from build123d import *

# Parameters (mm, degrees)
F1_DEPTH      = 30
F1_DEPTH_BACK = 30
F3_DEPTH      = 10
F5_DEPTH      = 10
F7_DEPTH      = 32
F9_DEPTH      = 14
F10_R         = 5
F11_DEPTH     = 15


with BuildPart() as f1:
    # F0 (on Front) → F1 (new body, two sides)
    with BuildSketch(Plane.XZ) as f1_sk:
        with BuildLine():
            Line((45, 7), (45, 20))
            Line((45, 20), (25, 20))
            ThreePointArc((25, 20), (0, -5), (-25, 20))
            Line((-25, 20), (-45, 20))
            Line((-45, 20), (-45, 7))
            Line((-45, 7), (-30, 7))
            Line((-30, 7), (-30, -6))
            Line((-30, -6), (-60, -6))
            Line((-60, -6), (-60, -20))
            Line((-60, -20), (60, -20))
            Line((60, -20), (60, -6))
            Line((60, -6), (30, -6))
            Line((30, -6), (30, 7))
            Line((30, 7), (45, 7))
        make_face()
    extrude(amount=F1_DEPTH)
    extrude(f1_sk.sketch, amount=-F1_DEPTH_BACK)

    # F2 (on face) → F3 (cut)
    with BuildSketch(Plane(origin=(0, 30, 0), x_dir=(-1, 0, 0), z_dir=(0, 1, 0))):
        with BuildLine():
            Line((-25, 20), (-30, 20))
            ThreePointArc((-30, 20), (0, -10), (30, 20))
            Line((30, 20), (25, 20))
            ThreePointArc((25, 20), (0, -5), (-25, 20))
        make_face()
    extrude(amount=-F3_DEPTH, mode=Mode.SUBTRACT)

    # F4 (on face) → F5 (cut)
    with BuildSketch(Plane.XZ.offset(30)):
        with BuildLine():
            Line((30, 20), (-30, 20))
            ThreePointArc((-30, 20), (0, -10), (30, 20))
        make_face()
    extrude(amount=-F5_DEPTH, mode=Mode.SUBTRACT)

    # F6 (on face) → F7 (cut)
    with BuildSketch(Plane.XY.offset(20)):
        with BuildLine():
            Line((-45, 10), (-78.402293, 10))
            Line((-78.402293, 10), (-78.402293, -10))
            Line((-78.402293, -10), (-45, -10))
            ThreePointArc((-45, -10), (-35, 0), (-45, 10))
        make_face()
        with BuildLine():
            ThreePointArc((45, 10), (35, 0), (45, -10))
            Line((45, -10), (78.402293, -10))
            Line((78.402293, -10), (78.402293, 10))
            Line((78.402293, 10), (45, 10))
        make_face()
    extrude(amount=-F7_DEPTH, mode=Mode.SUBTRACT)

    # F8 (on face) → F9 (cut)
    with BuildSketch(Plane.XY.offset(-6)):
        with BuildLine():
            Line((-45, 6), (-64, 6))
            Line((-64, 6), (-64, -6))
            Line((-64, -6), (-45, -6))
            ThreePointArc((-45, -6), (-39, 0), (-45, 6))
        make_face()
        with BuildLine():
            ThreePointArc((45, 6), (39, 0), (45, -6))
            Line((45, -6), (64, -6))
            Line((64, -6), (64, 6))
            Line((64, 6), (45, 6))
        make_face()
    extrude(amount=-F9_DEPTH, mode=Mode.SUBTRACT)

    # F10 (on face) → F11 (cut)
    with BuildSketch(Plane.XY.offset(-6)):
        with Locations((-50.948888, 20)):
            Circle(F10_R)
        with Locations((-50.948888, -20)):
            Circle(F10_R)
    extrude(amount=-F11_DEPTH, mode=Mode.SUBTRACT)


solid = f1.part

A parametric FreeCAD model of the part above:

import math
import FreeCAD as App
import Part
import Sketcher

V = App.Vector
Q = App.Units.Quantity

doc = App.newDocument("Part")
body = doc.addObject("PartDesign::Body", "Body")

# Sketch on XZ plane
sketch1 = body.newObject("Sketcher::SketchObject", "Sketch")
sketch1.AttachmentSupport = (doc.getObject("XZ_Plane"), [""])
sketch1.MapMode = "FlatFace"
sketch1.addGeometry([
    Part.LineSegment(V(45, 7, 0), V(45, 20, 0)),  # 0
    Part.LineSegment(V(45, 20, 0), V(25, 20, 0)),  # 1
    Part.ArcOfCircle(Part.Circle(V(0, 20, 0), V(0, 0, 1), 25), math.radians(180), math.radians(360)),  # 2
    Part.LineSegment(V(-25, 20, 0), V(-45, 20, 0)),  # 3
    Part.LineSegment(V(-45, 20, 0), V(-45, 7, 0)),  # 4
    Part.LineSegment(V(-45, 7, 0), V(-30, 7, 0)),  # 5
    Part.LineSegment(V(-30, 7, 0), V(-30, -6, 0)),  # 6
    Part.LineSegment(V(-30, -6, 0), V(-60, -6, 0)),  # 7
    Part.LineSegment(V(-60, -6, 0), V(-60, -20, 0)),  # 8
    Part.LineSegment(V(-60, -20, 0), V(60, -20, 0)),  # 9
    Part.LineSegment(V(60, -20, 0), V(60, -6, 0)),  # 10
    Part.LineSegment(V(60, -6, 0), V(30, -6, 0)),  # 11
    Part.LineSegment(V(30, -6, 0), V(30, 7, 0)),  # 12
    Part.LineSegment(V(30, 7, 0), V(45, 7, 0)),  # 13
], False)
sketch1.addConstraint([
    Sketcher.Constraint("Coincident", 0, 2, 1, 1),
    Sketcher.Constraint("Coincident", 1, 2, 2, 2),
    Sketcher.Constraint("Coincident", 2, 1, 3, 1),
    Sketcher.Constraint("Coincident", 3, 2, 4, 1),
    Sketcher.Constraint("Coincident", 4, 2, 5, 1),
    Sketcher.Constraint("Coincident", 5, 2, 6, 1),
    Sketcher.Constraint("Coincident", 6, 2, 7, 1),
    Sketcher.Constraint("Coincident", 7, 2, 8, 1),
    Sketcher.Constraint("Coincident", 8, 2, 9, 1),
    Sketcher.Constraint("Coincident", 9, 2, 10, 1),
    Sketcher.Constraint("Coincident", 10, 2, 11, 1),
    Sketcher.Constraint("Coincident", 11, 2, 12, 1),
    Sketcher.Constraint("Coincident", 12, 2, 13, 1),
    Sketcher.Constraint("Coincident", 13, 2, 0, 1),
    Sketcher.Constraint("Vertical", 0),
    Sketcher.Constraint("Horizontal", 1),
    Sketcher.Constraint("Horizontal", 3),
    Sketcher.Constraint("Vertical", 4),
    Sketcher.Constraint("Horizontal", 5),
    Sketcher.Constraint("Vertical", 6),
    Sketcher.Constraint("Horizontal", 7),
    Sketcher.Constraint("Vertical", 8),
    Sketcher.Constraint("Horizontal", 9),
    Sketcher.Constraint("Vertical", 10),
    Sketcher.Constraint("Horizontal", 11),
    Sketcher.Constraint("Vertical", 12),
    Sketcher.Constraint("Horizontal", 13),
    Sketcher.Constraint("Symmetric", 1, 2, 2, 1, -2),
    Sketcher.Constraint("Symmetric", 7, 2, 10, 2, -2),
    Sketcher.Constraint("Symmetric", 5, 2, 12, 2, -2),
    Sketcher.Constraint("Horizontal", 2, 3, 0, 2),
    Sketcher.Constraint("Equal", 1, 3),
    Sketcher.Constraint("Equal", 4, 6),
    Sketcher.Constraint("Radius", 2, Q("25 mm")),
    Sketcher.Constraint("DistanceX", 1, 2, 1, 1, Q("20 mm")),
    Sketcher.Constraint("DistanceX", 5, 1, 5, 2, Q("15 mm")),
    Sketcher.Constraint("DistanceX", 7, 2, 7, 1, Q("30 mm")),
    Sketcher.Constraint("DistanceY", 0, 1, 0, 2, Q("13 mm")),
    Sketcher.Constraint("DistanceY", 8, 2, 8, 1, Q("14 mm")),
    Sketcher.Constraint("DistanceY", -1, 1, 2, 3, Q("20 mm")),
])
pad1 = body.newObject("PartDesign::Pad", "Pad")
pad1.Profile = sketch1
pad1.Type = "TwoLengths"
pad1.Length = 30
pad1.Length2 = 30

# Sketch on XZ plane
sketch2 = body.newObject("Sketcher::SketchObject", "Sketch001")
sketch2.AttachmentSupport = (doc.getObject("XZ_Plane"), [""])
sketch2.MapMode = "FlatFace"
sketch2.AttachmentOffset = App.Placement(V(0, 0, -30), App.Rotation())
sketch2.addGeometry([
    Part.LineSegment(V(25, 20, 0), V(30, 20, 0)),
    Part.ArcOfCircle(Part.Circle(V(0, 20, 0), V(0, 0, 1), 30), math.radians(180), math.radians(360)),
    Part.LineSegment(V(-30, 20, 0), V(-25, 20, 0)),
    Part.ArcOfCircle(Part.Circle(V(0, 20, 0), V(0, 0, 1), 25), math.radians(180), math.radians(360)),
], False)
sketch2.addConstraint([
    Sketcher.Constraint("Coincident", 0, 2, 1, 2),
    Sketcher.Constraint("Coincident", 1, 1, 2, 1),
    Sketcher.Constraint("Coincident", 2, 2, 3, 1),
    Sketcher.Constraint("Coincident", 3, 2, 0, 1),
    Sketcher.Constraint("Horizontal", 0),
    Sketcher.Constraint("Horizontal", 2),
    Sketcher.Constraint("Coincident", 3, 3, 1, 3),
    Sketcher.Constraint("Symmetric", 0, 2, 1, 1, -2),
    Sketcher.Constraint("Horizontal", 3, 3, 0, 2),
    Sketcher.Constraint("Radius", 1, Q("30 mm")),
    Sketcher.Constraint("Radius", 3, Q("25 mm")),
    Sketcher.Constraint("DistanceY", -1, 1, 1, 3, Q("20 mm")),
])
pocket1 = body.newObject("PartDesign::Pocket", "Pocket")
pocket1.Profile = sketch2
pocket1.Length = 10
pocket1.Reversed = True

# Sketch on XZ plane
sketch3 = body.newObject("Sketcher::SketchObject", "Sketch002")
sketch3.AttachmentSupport = (doc.getObject("XZ_Plane"), [""])
sketch3.MapMode = "FlatFace"
sketch3.AttachmentOffset = App.Placement(V(0, 0, 30), App.Rotation())
sketch3.addGeometry([
    Part.LineSegment(V(30, 20, 0), V(-30, 20, 0)),
    Part.ArcOfCircle(Part.Circle(V(0, 20, 0), V(0, 0, 1), 30), math.radians(180), math.radians(360)),
], False)
sketch3.addConstraint([
    Sketcher.Constraint("Coincident", 0, 1, 1, 2),
    Sketcher.Constraint("Coincident", 1, 1, 0, 2),
    Sketcher.Constraint("Horizontal", 0),
    Sketcher.Constraint("PointOnObject", 1, 3, -2),
    Sketcher.Constraint("Horizontal", 1, 3, 0, 1),
    Sketcher.Constraint("Radius", 1, Q("30 mm")),
    Sketcher.Constraint("DistanceY", -1, 1, 1, 3, Q("20 mm")),
])
pocket2 = body.newObject("PartDesign::Pocket", "Pocket001")
pocket2.Profile = sketch3
pocket2.Length = 10

# Sketch on XY plane
sketch4 = body.newObject("Sketcher::SketchObject", "Sketch003")
sketch4.AttachmentSupport = (doc.getObject("XY_Plane"), [""])
sketch4.MapMode = "FlatFace"
sketch4.AttachmentOffset = App.Placement(V(0, 0, 20), App.Rotation())
sketch4.addGeometry([
    Part.LineSegment(V(-45, 10, 0), V(-78.402293, 10, 0)),  # 0
    Part.LineSegment(V(-78.402293, 10, 0), V(-78.402293, -10, 0)),  # 1
    Part.LineSegment(V(-78.402293, -10, 0), V(-45, -10, 0)),  # 2
    Part.ArcOfCircle(Part.Circle(V(-45, 0, 0), V(0, 0, 1), 10), math.radians(-90), math.radians(90)),  # 3
    Part.ArcOfCircle(Part.Circle(V(45, 0, 0), V(0, 0, 1), 10), math.radians(90), math.radians(270)),  # 4
    Part.LineSegment(V(45, -10, 0), V(78.402293, -10, 0)),  # 5
    Part.LineSegment(V(78.402293, -10, 0), V(78.402293, 10, 0)),  # 6
    Part.LineSegment(V(78.402293, 10, 0), V(45, 10, 0)),  # 7
], False)
sketch4.addConstraint([
    Sketcher.Constraint("Coincident", 0, 2, 1, 1),
    Sketcher.Constraint("Coincident", 1, 2, 2, 1),
    Sketcher.Constraint("Tangent", 2, 2, 3, 1),
    Sketcher.Constraint("Tangent", 3, 2, 0, 1),
    Sketcher.Constraint("Tangent", 4, 2, 5, 1),
    Sketcher.Constraint("Coincident", 5, 2, 6, 1),
    Sketcher.Constraint("Coincident", 6, 2, 7, 1),
    Sketcher.Constraint("Tangent", 7, 2, 4, 1),
    Sketcher.Constraint("Horizontal", 0),
    Sketcher.Constraint("Vertical", 1),
    Sketcher.Constraint("Horizontal", 2),
    Sketcher.Constraint("Horizontal", 5),
    Sketcher.Constraint("Vertical", 6),
    Sketcher.Constraint("Horizontal", 7),
    Sketcher.Constraint("Equal", 3, 4),
    Sketcher.Constraint("Symmetric", 3, 3, 4, 3, -1, 1),
    Sketcher.Constraint("Symmetric", 1, 2, 5, 2, -2),
    Sketcher.Constraint("Radius", 3, Q("10 mm")),
    Sketcher.Constraint("DistanceX", 3, 3, -1, 1, Q("45 mm")),
    Sketcher.Constraint("DistanceX", 0, 2, 0, 1, Q("33.402293 mm")),
])
pocket3 = body.newObject("PartDesign::Pocket", "Pocket002")
pocket3.Profile = sketch4
pocket3.Length = 32

# Sketch on XY plane
sketch5 = body.newObject("Sketcher::SketchObject", "Sketch004")
sketch5.AttachmentSupport = (doc.getObject("XY_Plane"), [""])
sketch5.MapMode = "FlatFace"
sketch5.AttachmentOffset = App.Placement(V(0, 0, -6), App.Rotation())
sketch5.addGeometry([
    Part.LineSegment(V(-45, 6, 0), V(-64, 6, 0)),  # 0
    Part.LineSegment(V(-64, 6, 0), V(-64, -6, 0)),  # 1
    Part.LineSegment(V(-64, -6, 0), V(-45, -6, 0)),  # 2
    Part.ArcOfCircle(Part.Circle(V(-45, 0, 0), V(0, 0, 1), 6), math.radians(-90), math.radians(90)),  # 3
    Part.ArcOfCircle(Part.Circle(V(45, 0, 0), V(0, 0, 1), 6), math.radians(90), math.radians(270)),  # 4
    Part.LineSegment(V(45, -6, 0), V(64, -6, 0)),  # 5
    Part.LineSegment(V(64, -6, 0), V(64, 6, 0)),  # 6
    Part.LineSegment(V(64, 6, 0), V(45, 6, 0)),  # 7
], False)
sketch5.addConstraint([
    Sketcher.Constraint("Coincident", 0, 2, 1, 1),
    Sketcher.Constraint("Coincident", 1, 2, 2, 1),
    Sketcher.Constraint("Tangent", 2, 2, 3, 1),
    Sketcher.Constraint("Tangent", 3, 2, 0, 1),
    Sketcher.Constraint("Tangent", 4, 2, 5, 1),
    Sketcher.Constraint("Coincident", 5, 2, 6, 1),
    Sketcher.Constraint("Coincident", 6, 2, 7, 1),
    Sketcher.Constraint("Tangent", 7, 2, 4, 1),
    Sketcher.Constraint("Horizontal", 0),
    Sketcher.Constraint("Vertical", 1),
    Sketcher.Constraint("Horizontal", 2),
    Sketcher.Constraint("Horizontal", 5),
    Sketcher.Constraint("Vertical", 6),
    Sketcher.Constraint("Horizontal", 7),
    Sketcher.Constraint("Equal", 3, 4),
    Sketcher.Constraint("Symmetric", 3, 3, 4, 3, -1, 1),
    Sketcher.Constraint("Symmetric", 1, 2, 5, 2, -2),
    Sketcher.Constraint("Radius", 3, Q("6 mm")),
    Sketcher.Constraint("DistanceX", 0, 2, 0, 1, Q("19 mm")),
    Sketcher.Constraint("DistanceX", 3, 3, -1, 1, Q("45 mm")),
])
pocket4 = body.newObject("PartDesign::Pocket", "Pocket003")
pocket4.Profile = sketch5
pocket4.Length = 14

# Sketch on XY plane
sketch6 = body.newObject("Sketcher::SketchObject", "Sketch005")
sketch6.AttachmentSupport = (doc.getObject("XY_Plane"), [""])
sketch6.MapMode = "FlatFace"
sketch6.AttachmentOffset = App.Placement(V(0, 0, -6), App.Rotation())
sketch6.addGeometry([
    Part.Circle(V(-50.948888, 20, 0), V(0, 0, 1), 5),
    Part.Circle(V(-50.948888, -20, 0), V(0, 0, 1), 5),
], False)
sketch6.addConstraint([
    Sketcher.Constraint("Equal", 0, 1),
    Sketcher.Constraint("Symmetric", 0, 3, 1, 3, -1),
    Sketcher.Constraint("Diameter", 0, Q("10 mm")),
    Sketcher.Constraint("DistanceY", -1, 1, 0, 3, Q("20 mm")),
    Sketcher.Constraint("DistanceX", 0, 3, -1, 1, Q("50.948888 mm")),
])
pocket5 = body.newObject("PartDesign::Pocket", "Pocket004")
pocket5.Profile = sketch6
pocket5.Length = 15

doc.recompute()
